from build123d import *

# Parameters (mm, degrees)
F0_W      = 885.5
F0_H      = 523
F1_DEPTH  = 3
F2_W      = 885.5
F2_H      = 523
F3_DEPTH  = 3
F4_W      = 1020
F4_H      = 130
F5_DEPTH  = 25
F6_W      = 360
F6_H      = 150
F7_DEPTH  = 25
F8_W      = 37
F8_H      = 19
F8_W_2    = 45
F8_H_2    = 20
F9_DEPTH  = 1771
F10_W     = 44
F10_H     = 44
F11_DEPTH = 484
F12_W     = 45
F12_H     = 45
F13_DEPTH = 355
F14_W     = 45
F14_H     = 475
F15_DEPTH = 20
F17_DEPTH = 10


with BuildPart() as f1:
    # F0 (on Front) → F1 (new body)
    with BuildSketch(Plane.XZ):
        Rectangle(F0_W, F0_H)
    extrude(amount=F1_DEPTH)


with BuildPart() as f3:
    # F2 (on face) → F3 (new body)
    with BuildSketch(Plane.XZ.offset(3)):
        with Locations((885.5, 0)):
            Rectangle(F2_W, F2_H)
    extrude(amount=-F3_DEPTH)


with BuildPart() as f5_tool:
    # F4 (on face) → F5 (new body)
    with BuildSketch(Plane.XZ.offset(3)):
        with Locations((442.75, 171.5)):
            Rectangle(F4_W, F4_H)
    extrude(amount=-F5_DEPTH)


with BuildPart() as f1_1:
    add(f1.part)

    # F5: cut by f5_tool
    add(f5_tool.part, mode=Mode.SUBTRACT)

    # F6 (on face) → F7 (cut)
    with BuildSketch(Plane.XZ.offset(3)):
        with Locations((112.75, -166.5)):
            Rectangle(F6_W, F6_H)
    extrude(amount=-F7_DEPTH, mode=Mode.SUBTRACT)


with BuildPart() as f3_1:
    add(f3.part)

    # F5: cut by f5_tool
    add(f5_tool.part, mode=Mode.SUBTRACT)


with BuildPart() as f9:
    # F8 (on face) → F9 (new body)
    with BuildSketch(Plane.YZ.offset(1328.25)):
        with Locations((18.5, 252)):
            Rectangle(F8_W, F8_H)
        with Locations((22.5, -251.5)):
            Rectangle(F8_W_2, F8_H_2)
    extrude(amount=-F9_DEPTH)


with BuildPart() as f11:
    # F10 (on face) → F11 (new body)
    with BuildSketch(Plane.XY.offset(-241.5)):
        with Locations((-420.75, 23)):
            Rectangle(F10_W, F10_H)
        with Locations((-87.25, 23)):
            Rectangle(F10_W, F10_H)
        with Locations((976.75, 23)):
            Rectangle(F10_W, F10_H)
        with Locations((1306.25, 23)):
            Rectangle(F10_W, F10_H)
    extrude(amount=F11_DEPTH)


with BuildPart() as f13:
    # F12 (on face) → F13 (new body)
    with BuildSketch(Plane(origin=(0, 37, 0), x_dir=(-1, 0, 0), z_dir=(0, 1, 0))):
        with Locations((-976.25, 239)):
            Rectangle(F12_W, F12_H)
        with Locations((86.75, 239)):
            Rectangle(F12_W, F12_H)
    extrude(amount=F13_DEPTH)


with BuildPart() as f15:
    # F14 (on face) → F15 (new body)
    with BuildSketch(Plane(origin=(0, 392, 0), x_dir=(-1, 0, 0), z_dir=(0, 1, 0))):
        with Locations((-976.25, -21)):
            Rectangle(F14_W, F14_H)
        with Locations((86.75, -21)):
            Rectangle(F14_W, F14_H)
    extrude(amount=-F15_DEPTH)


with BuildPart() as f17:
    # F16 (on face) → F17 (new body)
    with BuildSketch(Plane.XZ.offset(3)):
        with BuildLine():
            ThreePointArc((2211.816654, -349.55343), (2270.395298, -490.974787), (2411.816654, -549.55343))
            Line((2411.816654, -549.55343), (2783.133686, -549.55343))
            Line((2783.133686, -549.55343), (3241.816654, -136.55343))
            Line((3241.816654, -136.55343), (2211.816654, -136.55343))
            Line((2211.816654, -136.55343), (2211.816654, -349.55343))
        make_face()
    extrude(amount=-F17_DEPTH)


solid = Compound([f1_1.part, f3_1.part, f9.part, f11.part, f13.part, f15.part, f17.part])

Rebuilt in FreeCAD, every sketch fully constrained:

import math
import FreeCAD as App
import Part
import Sketcher
Q = App.Units.Quantity


def add_polygon(sketch, points):
    """Adds a closed chain of lines whose ends are joined by coincident constraints."""
    first, n = sketch.GeometryCount, len(points)
    for a, b in zip(points, points[1:] + points[:1]):
        sketch.addGeometry(Part.LineSegment(App.Vector(*a, 0), App.Vector(*b, 0)), False)
    for i in range(n):
        sketch.addConstraint(Sketcher.Constraint("Coincident", first + i, 2, first + (i + 1) % n, 1))

doc = App.newDocument("Part")
body = doc.addObject("PartDesign::Body", "Body")

sketch1 = body.newObject("Sketcher::SketchObject", "Sketch")
sketch1.AttachmentSupport = (doc.getObject("XZ_Plane"), [""])
sketch1.MapMode = "FlatFace"
add_polygon(sketch1, [(-443, 262), (-443, -262), (443, -262), (443, 262)])
sketch1.addConstraint([
    Sketcher.Constraint("Vertical", 0),
    Sketcher.Constraint("Horizontal", 1),
    Sketcher.Constraint("Vertical", 2),
    Sketcher.Constraint("Horizontal", 3),
    Sketcher.Constraint("Symmetric", 0, 2, 2, 2, -1, 1),
    Sketcher.Constraint("DistanceY", 0, 2, 0, 1, 523.0),
    Sketcher.Constraint("DistanceX", 1, 1, 1, 2, 885.5),
])
pad1 = body.newObject("PartDesign::Pad", "Pad")
pad1.Profile = sketch1
pad1.Length = 3
body2 = doc.addObject("PartDesign::Body", "Body001")

sketch2 = body2.newObject("Sketcher::SketchObject", "Sketch001")
sketch2.AttachmentSupport = (doc.getObject("XZ_Plane001"), [""])
sketch2.MapMode = "FlatFace"
sketch2.AttachmentOffset = App.Placement(App.Vector(0, 0, 3), App.Rotation())
add_polygon(sketch2, [(443, 262), (443, -262), (1328, -262), (1328, 262)])
sketch2.addConstraint([
    Sketcher.Constraint("Vertical", 0),
    Sketcher.Constraint("Horizontal", 1),
    Sketcher.Constraint("Vertical", 2),
    Sketcher.Constraint("Horizontal", 3),
    Sketcher.Constraint("DistanceY", 0, 2, 0, 1, 523.0),
    Sketcher.Constraint("DistanceX", 1, 1, 1, 2, 885.5),
    Sketcher.Constraint("DistanceY", 0, 2, -1, 1, 261.5),
    Sketcher.Constraint("DistanceX", -1, 1, 0, 2, 442.75),
])
pad2 = body2.newObject("PartDesign::Pad", "Pad001")
pad2.Profile = sketch2
pad2.Length = 3
pad2.Reversed = True
body3 = doc.addObject("PartDesign::Body", "Body002")

sketch3 = body3.newObject("Sketcher::SketchObject", "Sketch002")
sketch3.AttachmentSupport = (doc.getObject("XZ_Plane002"), [""])
sketch3.MapMode = "FlatFace"
sketch3.AttachmentOffset = App.Placement(App.Vector(0, 0, 3), App.Rotation())
add_polygon(sketch3, [(-67, 236), (-67, 106), (953, 106), (953, 236)])
sketch3.addConstraint([
    Sketcher.Constraint("Vertical", 0),
    Sketcher.Constraint("Horizontal", 1),
    Sketcher.Constraint("Vertical", 2),
    Sketcher.Constraint("Horizontal", 3),
    Sketcher.Constraint("DistanceX", 1, 1, 1, 2, 1020.0),
    Sketcher.Constraint("DistanceY", 0, 2, 0, 1, 130.0),
    Sketcher.Constraint("DistanceY", -1, 1, 0, 2, 106.5),
    Sketcher.Constraint("DistanceX", 0, 2, -1, 1, 67.25),
])
pad3 = body3.newObject("PartDesign::Pad", "Pad002")
pad3.Profile = sketch3
pad3.Length = 25
pad3.Reversed = True
doc.recompute()

body4 = doc.addObject("PartDesign::Body", "Body003")
body4.BaseFeature = body3
boolean = body.newObject("PartDesign::Boolean", "Boolean")
boolean.Type = "Cut"
boolean.addObjects([body4])
doc.recompute()

sketch4 = body.newObject("Sketcher::SketchObject", "Sketch003")
sketch4.AttachmentSupport = (doc.getObject("XZ_Plane"), [""])
sketch4.MapMode = "FlatFace"
sketch4.AttachmentOffset = App.Placement(App.Vector(0, 0, 3), App.Rotation())
add_polygon(sketch4, [(-67, -92), (-67, -242), (293, -242), (293, -92)])
sketch4.addConstraint([
    Sketcher.Constraint("Vertical", 0),
    Sketcher.Constraint("Horizontal", 1),
    Sketcher.Constraint("Vertical", 2),
    Sketcher.Constraint("Horizontal", 3),
    Sketcher.Constraint("DistanceX", 1, 1, 1, 2, 360.0),
    Sketcher.Constraint("DistanceY", 0, 2, 0, 1, 150.0),
    Sketcher.Constraint("DistanceY", 0, 2, -1, 1, 241.5),
    Sketcher.Constraint("DistanceX", 0, 2, -1, 1, 67.25),
])
pocket1 = body.newObject("PartDesign::Pocket", "Pocket")
pocket1.Profile = sketch4
pocket1.Length = 25
doc.recompute()

boolean2 = body2.newObject("PartDesign::Boolean", "Boolean001")
boolean2.Type = "Cut"
boolean2.addObjects([body3])
body5 = doc.addObject("PartDesign::Body", "Body004")
body5.AllowCompound = True

sketch5 = body5.newObject("Sketcher::SketchObject", "Sketch004")
sketch5.AttachmentSupport = (doc.getObject("YZ_Plane004"), [""])
sketch5.MapMode = "FlatFace"
sketch5.AttachmentOffset = App.Placement(App.Vector(0, 0, 1328.25), App.Rotation())
add_polygon(sketch5, [(0, 262), (0, 242), (37, 242), (37, 262)])
add_polygon(sketch5, [(0, -242), (0, -262), (45, -262), (45, -242)])
sketch5.addConstraint([
    Sketcher.Constraint("Vertical", 0),
    Sketcher.Constraint("Horizontal", 1),
    Sketcher.Constraint("Vertical", 2),
    Sketcher.Constraint("Horizontal", 3),
    Sketcher.Constraint("Vertical", 4),
    Sketcher.Constraint("Horizontal", 5),
    Sketcher.Constraint("Vertical", 6),
    Sketcher.Constraint("Horizontal", 7),
    Sketcher.Constraint("Symmetric", 3, 2, 4, 2, -1, 1),
    Sketcher.Constraint("PointOnObject", 0, 2, -2),
    Sketcher.Constraint("DistanceX", 1, 1, 1, 2, 37.0),
    Sketcher.Constraint("DistanceX", 5, 1, 5, 2, 45.0),
    Sketcher.Constraint("DistanceY", 0, 2, 0, 1, 19.0),
    Sketcher.Constraint("DistanceY", 4, 2, 4, 1, 20.0),
    Sketcher.Constraint("DistanceY", 4, 2, 0, 2, 504.0),
])
pad4 = body5.newObject("PartDesign::Pad", "Pad003")
pad4.Profile = sketch5
pad4.Length = 1771
pad4.Reversed = True
body6 = doc.addObject("PartDesign::Body", "Body005")
body6.AllowCompound = True

sketch6 = body6.newObject("Sketcher::SketchObject", "Sketch005")
sketch6.AttachmentSupport = (doc.getObject("XY_Plane005"), [""])
sketch6.MapMode = "FlatFace"
sketch6.AttachmentOffset = App.Placement(App.Vector(0, 0, -241.5), App.Rotation())
add_polygon(sketch6, [(-443, 45), (-443, 1), (-399, 1), (-399, 45)])
add_polygon(sketch6, [(-109, 45), (-109, 1), (-65, 1), (-65, 45)])
add_polygon(sketch6, [(955, 45), (955, 1), (999, 1), (999, 45)])
add_polygon(sketch6, [(1284, 45), (1284, 1), (1328, 1), (1328, 45)])
sketch6.addConstraint([
    Sketcher.Constraint("Vertical", 0),
    Sketcher.Constraint("Horizontal", 1),
    Sketcher.Constraint("Vertical", 2),
    Sketcher.Constraint("Horizontal", 3),
    Sketcher.Constraint("Vertical", 4),
    Sketcher.Constraint("Horizontal", 5),
    Sketcher.Constraint("Vertical", 6),
    Sketcher.Constraint("Horizontal", 7),
    Sketcher.Constraint("Vertical", 8),
    Sketcher.Constraint("Horizontal", 9),
    Sketcher.Constraint("Vertical", 10),
    Sketcher.Constraint("Horizontal", 11),
    Sketcher.Constraint("Vertical", 12),
    Sketcher.Constraint("Horizontal", 13),
    Sketcher.Constraint("Vertical", 14),
    Sketcher.Constraint("Horizontal", 15),
    Sketcher.Constraint("Horizontal", 1, 2, 4, 2),
    Sketcher.Constraint("Horizontal", 3, 2, 6, 2),
    Sketcher.Constraint("Horizontal", 5, 2, 8, 2),
    Sketcher.Constraint("Horizontal", 7, 2, 10, 2),
    Sketcher.Constraint("Horizontal", 9, 2, 12, 2),
    Sketcher.Constraint("Horizontal", 11, 2, 14, 2),
    Sketcher.Constraint("Equal", 3, 5),
    Sketcher.Constraint("Equal", 7, 9),
    Sketcher.Constraint("Equal", 11, 13),
    Sketcher.Constraint("Equal", 15, 0),
    Sketcher.Constraint("DistanceX", 1, 1, 1, 2, 44.0),
    Sketcher.Constraint("DistanceY", -1, 1, 0, 2, 1.0),
    Sketcher.Constraint("DistanceX", 5, 2, 8, 2, 1020.0),
    Sketcher.Constraint("DistanceX", 1, 2, 4, 2, 289.5),
    Sketcher.Constraint("DistanceX", 9, 2, 12, 2, 285.5),
    Sketcher.Constraint("DistanceX", 0, 2, -1, 1, 442.75),
])
pad5 = body6.newObject("PartDesign::Pad", "Pad004")
pad5.Profile = sketch6
pad5.Length = 484
body7 = doc.addObject("PartDesign::Body", "Body006")
body7.AllowCompound = True

sketch7 = body7.newObject("Sketcher::SketchObject", "Sketch006")
sketch7.AttachmentSupport = (doc.getObject("XZ_Plane006"), [""])
sketch7.MapMode = "FlatFace"
sketch7.AttachmentOffset = App.Placement(App.Vector(0, 0, -37), App.Rotation())
add_polygon(sketch7, [(999, 262), (999, 216), (954, 216), (954, 262)])
add_polygon(sketch7, [(-64, 262), (-64, 216), (-109, 216), (-109, 262)])
sketch7.addConstraint([
    Sketcher.Constraint("Vertical", 0),
    Sketcher.Constraint("Horizontal", 1),
    Sketcher.Constraint("Vertical", 2),
    Sketcher.Constraint("Horizontal", 3),
    Sketcher.Constraint("Vertical", 4),
    Sketcher.Constraint("Horizontal", 5),
    Sketcher.Constraint("Vertical", 6),
    Sketcher.Constraint("Horizontal", 7),
    Sketcher.Constraint("Horizontal", 1, 2, 4, 2),
    Sketcher.Constraint("Horizontal", 3, 2, 6, 2),
    Sketcher.Constraint("Equal", 3, 5),
    Sketcher.Constraint("Equal", 7, 0),
    Sketcher.Constraint("DistanceX", 1, 2, 1, 1, 45.0),
    Sketcher.Constraint("DistanceX", 4, 2, 1, 2, 1018.0),
    Sketcher.Constraint("DistanceY", -1, 1, 0, 2, 216.5),
    Sketcher.Constraint("DistanceX", -1, 1, 0, 2, 998.75),
])
pad6 = body7.newObject("PartDesign::Pad", "Pad005")
pad6.Profile = sketch7
pad6.Length = 355
pad6.Reversed = True
body8 = doc.addObject("PartDesign::Body", "Body007")
body8.AllowCompound = True

sketch8 = body8.newObject("Sketcher::SketchObject", "Sketch007")
sketch8.AttachmentSupport = (doc.getObject("XZ_Plane007"), [""])
sketch8.MapMode = "FlatFace"
sketch8.AttachmentOffset = App.Placement(App.Vector(0, 0, -392), App.Rotation())
add_polygon(sketch8, [(999, 216), (999, -258), (954, -258), (954, 216)])
add_polygon(sketch8, [(-64, 216), (-64, -258), (-109, -258), (-109, 216)])
sketch8.addConstraint([
    Sketcher.Constraint("Vertical", 0),
    Sketcher.Constraint("Horizontal", 1),
    Sketcher.Constraint("Vertical", 2),
    Sketcher.Constraint("Horizontal", 3),
    Sketcher.Constraint("Vertical", 4),
    Sketcher.Constraint("Horizontal", 5),
    Sketcher.Constraint("Vertical", 6),
    Sketcher.Constraint("Horizontal", 7),
    Sketcher.Constraint("Horizontal", 1, 2, 4, 2),
    Sketcher.Constraint("Horizontal", 3, 2, 6, 2),
    Sketcher.Constraint("Equal", 3, 5),
    Sketcher.Constraint("DistanceX", 1, 2, 1, 1, 45.0),
    Sketcher.Constraint("DistanceY", 0, 2, 0, 1, 475.0),
    Sketcher.Constraint("DistanceX", 4, 2, 1, 2, 1018.0),
    Sketcher.Constraint("DistanceY", 0, 2, -1, 1, 258.5),
    Sketcher.Constraint("DistanceX", -1, 1, 0, 2, 998.75),
])
pad7 = body8.newObject("PartDesign::Pad", "Pad006")
pad7.Profile = sketch8
pad7.Length = 20
body9 = doc.addObject("PartDesign::Body", "Body008")

sketch9 = body9.newObject("Sketcher::SketchObject", "Sketch008")
sketch9.AttachmentSupport = (doc.getObject("XZ_Plane008"), [""])
sketch9.MapMode = "FlatFace"
sketch9.AttachmentOffset = App.Placement(App.Vector(0, 0, 3), App.Rotation())
sketch9.addGeometry([
    Part.ArcOfCircle(Part.Circle(App.Vector(2412, -350, 0), App.Vector(0, 0, 1), 200), math.radians(180), math.radians(270)),
    Part.LineSegment(App.Vector(2412, -550, 0), App.Vector(2783, -550, 0)),
    Part.LineSegment(App.Vector(2783, -550, 0), App.Vector(3242, -137, 0)),
    Part.LineSegment(App.Vector(3242, -137, 0), App.Vector(2212, -137, 0)),
    Part.LineSegment(App.Vector(2212, -137, 0), App.Vector(2212, -350, 0)),
], False)
sketch9.addConstraint([
    Sketcher.Constraint("Tangent", 0, 2, 1, 1),
    Sketcher.Constraint("Coincident", 1, 2, 2, 1),
    Sketcher.Constraint("Coincident", 2, 2, 3, 1),
    Sketcher.Constraint("Coincident", 3, 2, 4, 1),
    Sketcher.Constraint("Tangent", 4, 2, 0, 1),
    Sketcher.Constraint("Horizontal", 1),
    Sketcher.Constraint("Horizontal", 3),
    Sketcher.Constraint("Vertical", 4),
    Sketcher.Constraint("Radius", 0, 199.999999),
    Sketcher.Constraint("DistanceX", 3, 2, 3, 1, 1030.0),
    Sketcher.Constraint("DistanceY", 4, 2, 4, 1, 213.0),
    Sketcher.Constraint("Angle", 2, Q("42 deg")),
    Sketcher.Constraint("DistanceY", 0, 3, -1, 1, 349.553431),
    Sketcher.Constraint("DistanceX", -1, 1, 0, 3, 2411.816653),
])
pad8 = body9.newObject("PartDesign::Pad", "Pad007")
pad8.Profile = sketch9
pad8.Length = 10
pad8.Reversed = True

doc.recompute()
